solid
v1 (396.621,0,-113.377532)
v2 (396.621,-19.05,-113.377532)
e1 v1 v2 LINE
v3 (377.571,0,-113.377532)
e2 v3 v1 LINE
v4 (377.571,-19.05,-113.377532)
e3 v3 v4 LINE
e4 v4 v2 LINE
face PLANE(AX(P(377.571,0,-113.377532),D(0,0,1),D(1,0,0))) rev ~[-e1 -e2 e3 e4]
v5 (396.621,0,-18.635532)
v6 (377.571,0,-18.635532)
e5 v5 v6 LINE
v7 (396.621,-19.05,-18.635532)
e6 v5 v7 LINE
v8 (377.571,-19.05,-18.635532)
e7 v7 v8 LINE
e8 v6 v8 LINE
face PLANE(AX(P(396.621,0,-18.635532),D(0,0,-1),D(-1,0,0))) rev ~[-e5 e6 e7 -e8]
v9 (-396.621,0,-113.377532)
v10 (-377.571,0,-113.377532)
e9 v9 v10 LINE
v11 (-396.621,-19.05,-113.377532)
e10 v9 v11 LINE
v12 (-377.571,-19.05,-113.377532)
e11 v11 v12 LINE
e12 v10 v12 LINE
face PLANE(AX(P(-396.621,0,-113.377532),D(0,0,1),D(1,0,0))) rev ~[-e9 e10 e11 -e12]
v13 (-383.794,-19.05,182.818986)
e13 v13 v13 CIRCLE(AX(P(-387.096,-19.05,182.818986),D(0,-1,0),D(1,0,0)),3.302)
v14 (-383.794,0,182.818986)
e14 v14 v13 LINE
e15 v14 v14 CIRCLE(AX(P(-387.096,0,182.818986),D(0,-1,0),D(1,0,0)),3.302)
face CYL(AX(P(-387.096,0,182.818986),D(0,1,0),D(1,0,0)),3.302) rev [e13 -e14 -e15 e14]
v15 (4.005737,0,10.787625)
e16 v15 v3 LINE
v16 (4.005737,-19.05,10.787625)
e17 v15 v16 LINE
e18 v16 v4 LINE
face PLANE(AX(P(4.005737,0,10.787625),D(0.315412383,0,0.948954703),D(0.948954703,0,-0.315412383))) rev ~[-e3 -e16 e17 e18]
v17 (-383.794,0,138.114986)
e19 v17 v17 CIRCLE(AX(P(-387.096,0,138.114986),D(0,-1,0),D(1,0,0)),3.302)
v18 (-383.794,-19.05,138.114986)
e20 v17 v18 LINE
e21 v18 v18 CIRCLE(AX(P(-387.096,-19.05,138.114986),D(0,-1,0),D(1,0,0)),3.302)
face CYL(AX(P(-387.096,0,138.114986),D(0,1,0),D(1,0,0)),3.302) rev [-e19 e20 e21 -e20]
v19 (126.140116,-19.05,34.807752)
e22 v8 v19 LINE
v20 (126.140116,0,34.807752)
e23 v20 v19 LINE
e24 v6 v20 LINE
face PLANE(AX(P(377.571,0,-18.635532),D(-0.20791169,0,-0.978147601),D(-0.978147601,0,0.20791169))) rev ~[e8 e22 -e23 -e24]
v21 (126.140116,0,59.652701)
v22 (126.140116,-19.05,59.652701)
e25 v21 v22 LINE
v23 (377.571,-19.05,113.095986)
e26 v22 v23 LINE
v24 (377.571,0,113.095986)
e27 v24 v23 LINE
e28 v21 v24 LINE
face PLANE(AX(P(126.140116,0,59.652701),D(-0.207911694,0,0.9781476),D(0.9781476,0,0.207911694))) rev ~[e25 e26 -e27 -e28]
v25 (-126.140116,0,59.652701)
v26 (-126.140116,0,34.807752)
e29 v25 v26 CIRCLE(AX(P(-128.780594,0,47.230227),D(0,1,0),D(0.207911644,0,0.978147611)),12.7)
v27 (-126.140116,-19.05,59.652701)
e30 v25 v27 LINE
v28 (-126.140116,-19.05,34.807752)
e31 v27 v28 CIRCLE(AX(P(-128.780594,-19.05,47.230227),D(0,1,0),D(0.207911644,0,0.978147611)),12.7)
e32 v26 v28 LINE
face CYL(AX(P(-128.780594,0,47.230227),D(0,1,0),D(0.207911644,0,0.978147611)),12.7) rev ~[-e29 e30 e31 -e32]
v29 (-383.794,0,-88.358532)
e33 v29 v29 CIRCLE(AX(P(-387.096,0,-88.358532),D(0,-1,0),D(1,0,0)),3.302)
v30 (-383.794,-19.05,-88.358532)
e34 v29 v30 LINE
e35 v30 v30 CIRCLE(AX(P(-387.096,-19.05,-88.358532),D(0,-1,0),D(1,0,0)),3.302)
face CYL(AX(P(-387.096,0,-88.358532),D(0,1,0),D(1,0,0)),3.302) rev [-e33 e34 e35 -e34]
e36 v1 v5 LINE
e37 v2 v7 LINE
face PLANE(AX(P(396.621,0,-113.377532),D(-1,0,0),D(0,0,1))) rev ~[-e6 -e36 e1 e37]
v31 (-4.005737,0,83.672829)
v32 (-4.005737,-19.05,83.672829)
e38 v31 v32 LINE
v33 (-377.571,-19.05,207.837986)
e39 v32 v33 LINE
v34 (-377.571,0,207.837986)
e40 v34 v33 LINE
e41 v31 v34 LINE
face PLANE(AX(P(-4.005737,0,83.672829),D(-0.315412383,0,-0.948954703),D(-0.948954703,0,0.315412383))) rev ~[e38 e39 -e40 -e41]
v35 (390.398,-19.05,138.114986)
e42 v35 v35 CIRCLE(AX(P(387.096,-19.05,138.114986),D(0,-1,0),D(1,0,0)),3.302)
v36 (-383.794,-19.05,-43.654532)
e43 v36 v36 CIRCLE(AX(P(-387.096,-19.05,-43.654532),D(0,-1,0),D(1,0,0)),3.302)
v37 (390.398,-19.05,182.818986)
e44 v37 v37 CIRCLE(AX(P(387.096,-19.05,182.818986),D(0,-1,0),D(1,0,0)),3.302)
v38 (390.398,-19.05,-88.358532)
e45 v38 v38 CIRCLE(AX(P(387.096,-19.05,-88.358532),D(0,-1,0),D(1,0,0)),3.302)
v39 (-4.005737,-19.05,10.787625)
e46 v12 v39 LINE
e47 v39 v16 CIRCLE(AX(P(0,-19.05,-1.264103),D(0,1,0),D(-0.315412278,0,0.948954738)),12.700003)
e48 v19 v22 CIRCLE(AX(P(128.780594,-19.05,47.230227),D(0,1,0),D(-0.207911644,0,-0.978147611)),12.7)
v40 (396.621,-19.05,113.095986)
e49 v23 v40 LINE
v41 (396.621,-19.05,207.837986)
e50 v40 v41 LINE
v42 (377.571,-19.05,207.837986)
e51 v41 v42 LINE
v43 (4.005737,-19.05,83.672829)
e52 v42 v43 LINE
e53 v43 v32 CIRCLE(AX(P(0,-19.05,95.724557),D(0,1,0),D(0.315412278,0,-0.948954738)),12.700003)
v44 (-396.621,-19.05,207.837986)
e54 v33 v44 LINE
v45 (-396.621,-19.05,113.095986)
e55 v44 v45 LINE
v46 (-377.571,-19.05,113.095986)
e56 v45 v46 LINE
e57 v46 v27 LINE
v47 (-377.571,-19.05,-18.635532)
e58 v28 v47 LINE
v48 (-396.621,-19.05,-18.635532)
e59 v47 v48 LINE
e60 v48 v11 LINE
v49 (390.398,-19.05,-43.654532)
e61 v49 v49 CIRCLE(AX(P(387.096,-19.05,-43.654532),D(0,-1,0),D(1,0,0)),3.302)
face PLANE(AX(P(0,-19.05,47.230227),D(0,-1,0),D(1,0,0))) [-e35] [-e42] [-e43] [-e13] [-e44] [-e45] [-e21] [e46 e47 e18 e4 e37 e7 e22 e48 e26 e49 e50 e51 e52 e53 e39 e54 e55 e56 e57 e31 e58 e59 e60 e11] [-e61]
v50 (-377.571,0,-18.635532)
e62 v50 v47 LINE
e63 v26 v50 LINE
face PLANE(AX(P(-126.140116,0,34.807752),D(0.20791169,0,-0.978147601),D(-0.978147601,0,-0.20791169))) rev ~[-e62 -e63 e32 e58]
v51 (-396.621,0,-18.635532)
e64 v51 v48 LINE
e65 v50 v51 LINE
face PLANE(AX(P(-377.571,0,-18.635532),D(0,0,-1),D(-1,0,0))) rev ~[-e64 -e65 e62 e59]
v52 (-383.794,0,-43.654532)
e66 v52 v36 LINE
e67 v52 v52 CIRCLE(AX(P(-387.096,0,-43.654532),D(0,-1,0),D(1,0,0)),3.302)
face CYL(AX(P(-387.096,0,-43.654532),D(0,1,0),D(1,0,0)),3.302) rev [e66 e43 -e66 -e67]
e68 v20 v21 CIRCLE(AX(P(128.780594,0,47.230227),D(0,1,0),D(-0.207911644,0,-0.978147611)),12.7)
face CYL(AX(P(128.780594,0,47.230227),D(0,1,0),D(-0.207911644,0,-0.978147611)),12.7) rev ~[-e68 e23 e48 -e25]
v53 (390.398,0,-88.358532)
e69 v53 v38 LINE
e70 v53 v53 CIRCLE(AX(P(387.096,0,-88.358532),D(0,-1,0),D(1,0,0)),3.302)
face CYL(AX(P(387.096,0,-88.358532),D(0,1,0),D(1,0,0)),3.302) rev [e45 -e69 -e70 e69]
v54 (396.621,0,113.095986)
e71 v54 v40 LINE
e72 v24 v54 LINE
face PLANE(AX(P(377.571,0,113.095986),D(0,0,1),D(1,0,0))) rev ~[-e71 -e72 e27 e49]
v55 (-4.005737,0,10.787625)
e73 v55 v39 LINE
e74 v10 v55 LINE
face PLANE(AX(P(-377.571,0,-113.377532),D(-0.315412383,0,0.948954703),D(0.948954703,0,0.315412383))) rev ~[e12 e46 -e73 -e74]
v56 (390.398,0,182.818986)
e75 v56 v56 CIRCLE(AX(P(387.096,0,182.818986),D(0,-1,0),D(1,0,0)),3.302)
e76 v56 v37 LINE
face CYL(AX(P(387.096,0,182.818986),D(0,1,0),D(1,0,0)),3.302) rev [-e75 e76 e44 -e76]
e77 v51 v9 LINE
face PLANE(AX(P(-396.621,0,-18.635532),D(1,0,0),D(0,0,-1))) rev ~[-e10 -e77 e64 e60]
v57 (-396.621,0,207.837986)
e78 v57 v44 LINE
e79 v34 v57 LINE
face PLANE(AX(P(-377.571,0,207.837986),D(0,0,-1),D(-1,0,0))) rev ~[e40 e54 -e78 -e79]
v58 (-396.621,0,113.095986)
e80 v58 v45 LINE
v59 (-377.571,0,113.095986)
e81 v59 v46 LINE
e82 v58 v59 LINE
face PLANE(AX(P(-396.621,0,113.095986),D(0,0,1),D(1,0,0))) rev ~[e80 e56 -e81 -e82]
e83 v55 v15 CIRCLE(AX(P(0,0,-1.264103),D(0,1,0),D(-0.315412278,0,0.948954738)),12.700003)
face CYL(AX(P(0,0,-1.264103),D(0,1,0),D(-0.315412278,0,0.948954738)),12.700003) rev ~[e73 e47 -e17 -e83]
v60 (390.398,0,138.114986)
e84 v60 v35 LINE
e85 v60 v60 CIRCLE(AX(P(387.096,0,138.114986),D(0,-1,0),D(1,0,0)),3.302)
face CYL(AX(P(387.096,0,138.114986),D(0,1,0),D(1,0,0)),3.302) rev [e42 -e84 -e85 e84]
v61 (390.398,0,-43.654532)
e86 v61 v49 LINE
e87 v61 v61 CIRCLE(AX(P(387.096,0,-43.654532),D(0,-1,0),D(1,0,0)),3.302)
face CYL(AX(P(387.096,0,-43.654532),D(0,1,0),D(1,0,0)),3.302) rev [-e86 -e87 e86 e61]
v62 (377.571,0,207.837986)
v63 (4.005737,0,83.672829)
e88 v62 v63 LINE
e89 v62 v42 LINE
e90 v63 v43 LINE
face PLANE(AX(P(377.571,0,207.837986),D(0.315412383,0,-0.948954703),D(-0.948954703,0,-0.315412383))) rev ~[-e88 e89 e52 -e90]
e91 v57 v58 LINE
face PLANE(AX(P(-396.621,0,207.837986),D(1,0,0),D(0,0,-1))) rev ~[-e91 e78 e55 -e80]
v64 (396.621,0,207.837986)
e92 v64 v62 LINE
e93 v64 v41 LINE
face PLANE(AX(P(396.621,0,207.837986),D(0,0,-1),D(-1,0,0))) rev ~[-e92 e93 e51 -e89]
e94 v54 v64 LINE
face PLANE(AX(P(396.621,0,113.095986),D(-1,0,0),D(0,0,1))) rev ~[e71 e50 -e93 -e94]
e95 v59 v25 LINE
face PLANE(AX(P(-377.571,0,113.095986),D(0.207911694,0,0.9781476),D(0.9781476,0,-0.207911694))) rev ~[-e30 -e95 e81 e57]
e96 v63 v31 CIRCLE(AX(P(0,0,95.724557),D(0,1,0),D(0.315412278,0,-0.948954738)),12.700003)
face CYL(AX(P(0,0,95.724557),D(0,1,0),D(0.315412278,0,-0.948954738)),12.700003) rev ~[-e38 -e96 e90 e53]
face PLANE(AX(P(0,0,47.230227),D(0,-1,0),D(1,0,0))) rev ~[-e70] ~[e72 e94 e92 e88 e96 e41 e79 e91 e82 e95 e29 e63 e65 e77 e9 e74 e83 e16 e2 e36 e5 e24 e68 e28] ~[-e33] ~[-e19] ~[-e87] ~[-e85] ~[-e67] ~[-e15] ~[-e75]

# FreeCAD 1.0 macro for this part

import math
import FreeCAD as App
import Part
import Sketcher

V = App.Vector
Q = App.Units.Quantity

doc = App.newDocument("Part")
params = doc.addObject("Spreadsheet::Sheet", "Params")
for row, (alias, value) in enumerate([
    ("sketch1_radius", "0.5 in"),
    ("sketch1_radius2", "0.5000001 in"),
    ("sketch1_width", "0.75 in"),
    ("sketch1_height", "3.73 in"),
    ("sketch1_length", "10.12 in"),
    ("pad1_length", "0.75 in"),
    ("sketch2_diameter", "0.26 in"),
], start=1):
    params.set(f"A{row}", alias)
    params.set(f"B{row}", "=" + value)
    params.setAlias(f"B{row}", alias)

body = doc.addObject("PartDesign::Body", "Body")

sketch1 = body.newObject("Sketcher::SketchObject", "Sketch")
sketch1.AttachmentSupport = (doc.getObject("XZ_Plane"), [""])
sketch1.MapMode = "FlatFace"
sketch1.addGeometry(Part.LineSegment(V(-396.621, 113.095986, 0), V(-377.571, 113.095986, 0)), False)
sketch1.addGeometry(Part.LineSegment(V(-377.571, 113.095986, 0), V(-126.140116, 59.652701, 0)), False)
sketch1.addGeometry(Part.ArcOfCircle(Part.Circle(V(-128.780594, 47.230227, 0), V(0, 0, 1), 12.7), math.radians(-78.000003), math.radians(78.000003)), False)
sketch1.addGeometry(Part.LineSegment(V(-126.140116, 34.807752, 0), V(-377.571, -18.635532, 0)), False)
sketch1.addGeometry(Part.LineSegment(V(-377.571, -18.635532, 0), V(-396.621, -18.635532, 0)), False)
sketch1.addGeometry(Part.LineSegment(V(-396.621, -18.635532, 0), V(-396.621, -113.377532, 0)), False)
sketch1.addGeometry(Part.LineSegment(V(-396.621, -113.377532, 0), V(-377.571, -113.377532, 0)), False)
sketch1.addGeometry(Part.LineSegment(V(-377.571, -113.377532, 0), V(-4.005737, 10.787625, 0)), False)
sketch1.addGeometry(Part.ArcOfCircle(Part.Circle(V(0, -1.264103, 0), V(0, 0, 1), 12.700003), math.radians(71.614296), math.radians(108.385704)), False)
sketch1.addGeometry(Part.LineSegment(V(4.005737, 10.787625, 0), V(377.571, -113.377532, 0)), False)
sketch1.addGeometry(Part.LineSegment(V(377.571, -113.377532, 0), V(396.621, -113.377532, 0)), False)
sketch1.addGeometry(Part.LineSegment(V(396.621, -113.377532, 0), V(396.621, -18.635532, 0)), False)
sketch1.addGeometry(Part.LineSegment(V(396.621, -18.635532, 0), V(377.571, -18.635532, 0)), False)
sketch1.addGeometry(Part.LineSegment(V(377.571, -18.635532, 0), V(126.140116, 34.807752, 0)), False)
sketch1.addGeometry(Part.ArcOfCircle(Part.Circle(V(128.780594, 47.230227, 0), V(0, 0, 1), 12.7), math.radians(101.999997), math.radians(258.000003)), False)
sketch1.addGeometry(Part.LineSegment(V(126.140116, 59.652701, 0), V(377.571, 113.095986, 0)), False)
sketch1.addGeometry(Part.LineSegment(V(377.571, 113.095986, 0), V(396.621, 113.095986, 0)), False)
sketch1.addGeometry(Part.LineSegment(V(396.621, 113.095986, 0), V(396.621, 207.837986, 0)), False)
sketch1.addGeometry(Part.LineSegment(V(396.621, 207.837986, 0), V(377.571, 207.837986, 0)), False)
sketch1.addGeometry(Part.LineSegment(V(377.571, 207.837986, 0), V(4.005737, 83.672829, 0)), False)
sketch1.addGeometry(Part.ArcOfCircle(Part.Circle(V(0, 95.724557, 0), V(0, 0, 1), 12.700003), math.radians(-108.385704), math.radians(-71.614296)), False)
sketch1.addGeometry(Part.LineSegment(V(-4.005737, 83.672829, 0), V(-377.571, 207.837986, 0)), False)
sketch1.addGeometry(Part.LineSegment(V(-377.571, 207.837986, 0), V(-396.621, 207.837986, 0)), False)
sketch1.addGeometry(Part.LineSegment(V(-396.621, 207.837986, 0), V(-396.621, 113.095986, 0)), False)
sketch1.addConstraint(Sketcher.Constraint("Coincident", 0, 2, 1, 1))
sketch1.addConstraint(Sketcher.Constraint("Tangent", 1, 2, 2, 2))
sketch1.addConstraint(Sketcher.Constraint("Tangent", 2, 1, 3, 1))
sketch1.addConstraint(Sketcher.Constraint("Coincident", 3, 2, 4, 1))
sketch1.addConstraint(Sketcher.Constraint("Coincident", 4, 2, 5, 1))
sketch1.addConstraint(Sketcher.Constraint("Coincident", 5, 2, 6, 1))
sketch1.addConstraint(Sketcher.Constraint("Coincident", 6, 2, 7, 1))
sketch1.addConstraint(Sketcher.Constraint("Tangent", 7, 2, 8, 2))
sketch1.addConstraint(Sketcher.Constraint("Tangent", 8, 1, 9, 1))
sketch1.addConstraint(Sketcher.Constraint("Coincident", 9, 2, 10, 1))
sketch1.addConstraint(Sketcher.Constraint("Coincident", 10, 2, 11, 1))
sketch1.addConstraint(Sketcher.Constraint("Coincident", 11, 2, 12, 1))
sketch1.addConstraint(Sketcher.Constraint("Coincident", 12, 2, 13, 1))
sketch1.addConstraint(Sketcher.Constraint("Tangent", 13, 2, 14, 2))
sketch1.addConstraint(Sketcher.Constraint("Tangent", 14, 1, 15, 1))
sketch1.addConstraint(Sketcher.Constraint("Coincident", 15, 2, 16, 1))
sketch1.addConstraint(Sketcher.Constraint("Coincident", 16, 2, 17, 1))
sketch1.addConstraint(Sketcher.Constraint("Coincident", 17, 2, 18, 1))
sketch1.addConstraint(Sketcher.Constraint("Coincident", 18, 2, 19, 1))
sketch1.addConstraint(Sketcher.Constraint("Tangent", 19, 2, 20, 2))
sketch1.addConstraint(Sketcher.Constraint("Tangent", 20, 1, 21, 1))
sketch1.addConstraint(Sketcher.Constraint("Coincident", 21, 2, 22, 1))
sketch1.addConstraint(Sketcher.Constraint("Coincident", 22, 2, 23, 1))
sketch1.addConstraint(Sketcher.Constraint("Coincident", 23, 2, 0, 1))
sketch1.addConstraint(Sketcher.Constraint("Horizontal", 0))
sketch1.addConstraint(Sketcher.Constraint("Horizontal", 4))
sketch1.addConstraint(Sketcher.Constraint("Vertical", 5))
sketch1.addConstraint(Sketcher.Constraint("Horizontal", 6))
sketch1.addConstraint(Sketcher.Constraint("Horizontal", 10))
sketch1.addConstraint(Sketcher.Constraint("Vertical", 11))
sketch1.addConstraint(Sketcher.Constraint("Horizontal", 12))
sketch1.addConstraint(Sketcher.Constraint("Horizontal", 16))
sketch1.addConstraint(Sketcher.Constraint("Vertical", 17))
sketch1.addConstraint(Sketcher.Constraint("Horizontal", 18))
sketch1.addConstraint(Sketcher.Constraint("Horizontal", 22))
sketch1.addConstraint(Sketcher.Constraint("Vertical", 23))
sketch1.addConstraint(Sketcher.Constraint("Equal", 2, 14))
sketch1.addConstraint(Sketcher.Constraint("Equal", 8, 20))
sketch1.addConstraint(Sketcher.Constraint("Symmetric", 2, 3, 14, 3, -2))
sketch1.addConstraint(Sketcher.Constraint("Symmetric", 6, 2, 9, 2, -2))
sketch1.addConstraint(Sketcher.Constraint("Symmetric", 4, 2, 11, 2, -2))
sketch1.addConstraint(Sketcher.Constraint("Symmetric", 0, 2, 15, 2, -2))
sketch1.addConstraint(Sketcher.Constraint("Symmetric", 18, 2, 21, 2, -2))
sketch1.addConstraint(Sketcher.Constraint("PointOnObject", 8, 3, -2))
sketch1.addConstraint(Sketcher.Constraint("PointOnObject", 20, 3, -2))
sketch1.addConstraint(Sketcher.Constraint("Parallel", 1, 13))
sketch1.addConstraint(Sketcher.Constraint("Parallel", 3, 15))
sketch1.addConstraint(Sketcher.Constraint("Parallel", 7, 19))
sketch1.addConstraint(Sketcher.Constraint("Vertical", 0, 2, 3, 2))
sketch1.addConstraint(Sketcher.Constraint("Vertical", 3, 2, 6, 2))
sketch1.addConstraint(Sketcher.Constraint("Vertical", 11, 2, 16, 2))
sketch1.addConstraint(Sketcher.Constraint("Vertical", 15, 2, 18, 2))
sketch1.addConstraint(Sketcher.Constraint("Vertical", 5, 2, 22, 2))
sketch1.addConstraint(Sketcher.Constraint("Equal", 11, 17))
sketch1.addConstraint(Sketcher.Constraint("Radius", 2, Q("0.5 in")))
sketch1.addConstraint(Sketcher.Constraint("Radius", 8, Q("0.5000001 in")))
sketch1.addConstraint(Sketcher.Constraint("Angle", 1, Q("-12 deg")))
sketch1.addConstraint(Sketcher.Constraint("DistanceX", 0, 1, 0, 2, Q("0.75 in")))
sketch1.addConstraint(Sketcher.Constraint("DistanceY", 5, 2, 5, 1, Q("3.73 in")))
sketch1.addConstraint(Sketcher.Constraint("Distance", 1, Q("10.12 in")))
sketch1.addConstraint(Sketcher.Constraint("DistanceX", 0, 2, -1, 1, Q("14.865 in")))
sketch1.addConstraint(Sketcher.Constraint("DistanceY", -1, 1, 1, 2, Q("59.652701 mm")))
sketch1.addConstraint(Sketcher.Constraint("DistanceY", 7, 2, 2, 3, Q("36.442602 mm")))
sketch1.setExpression("Constraints[54]", "Params.sketch1_radius")
sketch1.setExpression("Constraints[55]", "Params.sketch1_radius2")
sketch1.setExpression("Constraints[57]", "Params.sketch1_width")
sketch1.setExpression("Constraints[58]", "Params.sketch1_height")
sketch1.setExpression("Constraints[59]", "Params.sketch1_length")
pad1 = body.newObject("PartDesign::Pad", "Pad")
pad1.Profile = sketch1
pad1.setExpression("Length", "Params.pad1_length")

sketch2 = body.newObject("Sketcher::SketchObject", "Sketch001")
sketch2.AttachmentSupport = (doc.getObject("XZ_Plane"), [""])
sketch2.MapMode = "FlatFace"
sketch2.addGeometry(Part.Circle(V(387.096, 182.818986, 0), V(0, 0, 1), 3.302), False)
sketch2.addGeometry(Part.Circle(V(387.096, 138.114986, 0), V(0, 0, 1), 3.302), False)
sketch2.addGeometry(Part.Circle(V(-387.096, 182.818986, 0), V(0, 0, 1), 3.302), False)
sketch2.addGeometry(Part.Circle(V(-387.096, 138.114986, 0), V(0, 0, 1), 3.302), False)
sketch2.addGeometry(Part.Circle(V(387.096, -43.654532, 0), V(0, 0, 1), 3.302), False)
sketch2.addGeometry(Part.Circle(V(387.096, -88.358532, 0), V(0, 0, 1), 3.302), False)
sketch2.addGeometry(Part.Circle(V(-387.096, -88.358532, 0), V(0, 0, 1), 3.302), False)
sketch2.addGeometry(Part.Circle(V(-387.096, -43.654532, 0), V(0, 0, 1), 3.302), False)
sketch2.addConstraint(Sketcher.Constraint("Equal", 0, 1))
sketch2.addConstraint(Sketcher.Constraint("Equal", 1, 2))
sketch2.addConstraint(Sketcher.Constraint("Equal", 2, 3))
sketch2.addConstraint(Sketcher.Constraint("Equal", 3, 4))
sketch2.addConstraint(Sketcher.Constraint("Equal", 4, 5))
sketch2.addConstraint(Sketcher.Constraint("Equal", 5, 6))
sketch2.addConstraint(Sketcher.Constraint("Equal", 6, 7))
sketch2.addConstraint(Sketcher.Constraint("Symmetric", 0, 3, 2, 3, -2))
sketch2.addConstraint(Sketcher.Constraint("Symmetric", 1, 3, 3, 3, -2))
sketch2.addConstraint(Sketcher.Constraint("Symmetric", 5, 3, 6, 3, -2))
sketch2.addConstraint(Sketcher.Constraint("Symmetric", 4, 3, 7, 3, -2))
sketch2.addConstraint(Sketcher.Constraint("Vertical", 0, 3, 1, 3))
sketch2.addConstraint(Sketcher.Constraint("Vertical", 1, 3, 4, 3))
sketch2.addConstraint(Sketcher.Constraint("Vertical", 4, 3, 5, 3))
sketch2.addConstraint(Sketcher.Constraint("Diameter", 0, Q("0.26 in")))
sketch2.addConstraint(Sketcher.Constraint("DistanceX", -1, 1, 0, 3, Q("15.24 in")))
sketch2.addConstraint(Sketcher.Constraint("DistanceY", 1, 3, 0, 3, Q("1.76 in")))
sketch2.addConstraint(Sketcher.Constraint("DistanceY", 5, 3, 4, 3, Q("1.76 in")))
sketch2.addConstraint(Sketcher.Constraint("DistanceY", 5, 3, -1, 1, Q("88.358532 mm")))
sketch2.addConstraint(Sketcher.Constraint("DistanceY", 4, 3, 1, 3, Q("181.769518 mm")))
sketch2.setExpression("Constraints[14]", "Params.sketch2_diameter")
pocket1 = body.newObject("PartDesign::Pocket", "Pocket")
pocket1.Profile = sketch2
pocket1.Type = "ThroughAll"
pocket1.Reversed = True

doc.recompute()
